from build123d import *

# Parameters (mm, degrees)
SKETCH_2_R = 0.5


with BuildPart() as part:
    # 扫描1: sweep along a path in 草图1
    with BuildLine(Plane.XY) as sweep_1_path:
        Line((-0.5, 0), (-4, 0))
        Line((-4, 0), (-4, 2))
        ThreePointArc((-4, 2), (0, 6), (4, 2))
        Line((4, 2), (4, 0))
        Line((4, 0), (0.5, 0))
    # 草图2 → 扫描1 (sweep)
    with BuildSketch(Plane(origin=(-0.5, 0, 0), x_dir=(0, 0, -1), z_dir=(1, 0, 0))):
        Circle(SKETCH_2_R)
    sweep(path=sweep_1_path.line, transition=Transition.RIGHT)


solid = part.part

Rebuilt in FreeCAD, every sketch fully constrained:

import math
import FreeCAD as App
import Part
import Sketcher
Q = App.Units.Quantity

doc = App.newDocument("Part")
body = doc.addObject("PartDesign::Body", "Body")

# Sketch on YZ plane
sketch1 = body.newObject("Sketcher::SketchObject", "Sketch")
sketch1.AttachmentSupport = (doc.getObject("YZ_Plane"), [""])
sketch1.MapMode = "FlatFace"
sketch1.AttachmentOffset = App.Placement(App.Vector(0, 0, -0.5), App.Rotation())
sketch1.addGeometry(Part.Circle(App.Vector(0, 0, 0), App.Vector(0, 0, 1), 0.5), False)
sketch1.addConstraint([
    Sketcher.Constraint("Coincident", 0, 3, -1, 1),
    Sketcher.Constraint("Diameter", 0, Q("1 mm")),
])

# Sketch on XY plane
sketch2 = body.newObject("Sketcher::SketchObject", "Sketch001")
sketch2.AttachmentSupport = (doc.getObject("XY_Plane"), [""])
sketch2.MapMode = "FlatFace"
sketch2.addGeometry([
    Part.LineSegment(App.Vector(-0.5, 0, 0), App.Vector(-4, 0, 0)),  # 0
    Part.LineSegment(App.Vector(-4, 0, 0), App.Vector(-4, 2, 0)),  # 1
    Part.ArcOfCircle(Part.Circle(App.Vector(0, 2, 0), App.Vector(0, 0, 1), 4), math.radians(0), math.radians(180)),  # 2
    Part.LineSegment(App.Vector(4, 2, 0), App.Vector(4, 0, 0)),  # 3
    Part.LineSegment(App.Vector(4, 0, 0), App.Vector(0.5, 0, 0)),  # 4
], False)
sketch2.addConstraint([
    Sketcher.Constraint("Coincident", 0, 2, 1, 1),
    Sketcher.Constraint("Tangent", 1, 2, 2, 2),
    Sketcher.Constraint("Tangent", 2, 1, 3, 1),
    Sketcher.Constraint("Coincident", 3, 2, 4, 1),
    Sketcher.Constraint("Horizontal", 0),
    Sketcher.Constraint("Vertical", 1),
    Sketcher.Constraint("Vertical", 3),
    Sketcher.Constraint("Horizontal", 4),
    Sketcher.Constraint("Symmetric", 0, 2, 3, 2, -1, 1),
    Sketcher.Constraint("Symmetric", 0, 1, 4, 2, -2),
    Sketcher.Constraint("Radius", 2, Q("4 mm")),
    Sketcher.Constraint("DistanceY", 1, 1, 1, 2, Q("2 mm")),
    Sketcher.Constraint("DistanceX", 0, 2, 0, 1, Q("3.5 mm")),
])
doc.recompute()

additivepipe = body.newObject("PartDesign::AdditivePipe", "AdditivePipe")
additivepipe.Profile = sketch1
additivepipe.Spine = (sketch2, ["Edge1", "Edge2", "Edge3", "Edge4", "Edge5"])
additivepipe.Transition = "Right corner"

doc.recompute()
